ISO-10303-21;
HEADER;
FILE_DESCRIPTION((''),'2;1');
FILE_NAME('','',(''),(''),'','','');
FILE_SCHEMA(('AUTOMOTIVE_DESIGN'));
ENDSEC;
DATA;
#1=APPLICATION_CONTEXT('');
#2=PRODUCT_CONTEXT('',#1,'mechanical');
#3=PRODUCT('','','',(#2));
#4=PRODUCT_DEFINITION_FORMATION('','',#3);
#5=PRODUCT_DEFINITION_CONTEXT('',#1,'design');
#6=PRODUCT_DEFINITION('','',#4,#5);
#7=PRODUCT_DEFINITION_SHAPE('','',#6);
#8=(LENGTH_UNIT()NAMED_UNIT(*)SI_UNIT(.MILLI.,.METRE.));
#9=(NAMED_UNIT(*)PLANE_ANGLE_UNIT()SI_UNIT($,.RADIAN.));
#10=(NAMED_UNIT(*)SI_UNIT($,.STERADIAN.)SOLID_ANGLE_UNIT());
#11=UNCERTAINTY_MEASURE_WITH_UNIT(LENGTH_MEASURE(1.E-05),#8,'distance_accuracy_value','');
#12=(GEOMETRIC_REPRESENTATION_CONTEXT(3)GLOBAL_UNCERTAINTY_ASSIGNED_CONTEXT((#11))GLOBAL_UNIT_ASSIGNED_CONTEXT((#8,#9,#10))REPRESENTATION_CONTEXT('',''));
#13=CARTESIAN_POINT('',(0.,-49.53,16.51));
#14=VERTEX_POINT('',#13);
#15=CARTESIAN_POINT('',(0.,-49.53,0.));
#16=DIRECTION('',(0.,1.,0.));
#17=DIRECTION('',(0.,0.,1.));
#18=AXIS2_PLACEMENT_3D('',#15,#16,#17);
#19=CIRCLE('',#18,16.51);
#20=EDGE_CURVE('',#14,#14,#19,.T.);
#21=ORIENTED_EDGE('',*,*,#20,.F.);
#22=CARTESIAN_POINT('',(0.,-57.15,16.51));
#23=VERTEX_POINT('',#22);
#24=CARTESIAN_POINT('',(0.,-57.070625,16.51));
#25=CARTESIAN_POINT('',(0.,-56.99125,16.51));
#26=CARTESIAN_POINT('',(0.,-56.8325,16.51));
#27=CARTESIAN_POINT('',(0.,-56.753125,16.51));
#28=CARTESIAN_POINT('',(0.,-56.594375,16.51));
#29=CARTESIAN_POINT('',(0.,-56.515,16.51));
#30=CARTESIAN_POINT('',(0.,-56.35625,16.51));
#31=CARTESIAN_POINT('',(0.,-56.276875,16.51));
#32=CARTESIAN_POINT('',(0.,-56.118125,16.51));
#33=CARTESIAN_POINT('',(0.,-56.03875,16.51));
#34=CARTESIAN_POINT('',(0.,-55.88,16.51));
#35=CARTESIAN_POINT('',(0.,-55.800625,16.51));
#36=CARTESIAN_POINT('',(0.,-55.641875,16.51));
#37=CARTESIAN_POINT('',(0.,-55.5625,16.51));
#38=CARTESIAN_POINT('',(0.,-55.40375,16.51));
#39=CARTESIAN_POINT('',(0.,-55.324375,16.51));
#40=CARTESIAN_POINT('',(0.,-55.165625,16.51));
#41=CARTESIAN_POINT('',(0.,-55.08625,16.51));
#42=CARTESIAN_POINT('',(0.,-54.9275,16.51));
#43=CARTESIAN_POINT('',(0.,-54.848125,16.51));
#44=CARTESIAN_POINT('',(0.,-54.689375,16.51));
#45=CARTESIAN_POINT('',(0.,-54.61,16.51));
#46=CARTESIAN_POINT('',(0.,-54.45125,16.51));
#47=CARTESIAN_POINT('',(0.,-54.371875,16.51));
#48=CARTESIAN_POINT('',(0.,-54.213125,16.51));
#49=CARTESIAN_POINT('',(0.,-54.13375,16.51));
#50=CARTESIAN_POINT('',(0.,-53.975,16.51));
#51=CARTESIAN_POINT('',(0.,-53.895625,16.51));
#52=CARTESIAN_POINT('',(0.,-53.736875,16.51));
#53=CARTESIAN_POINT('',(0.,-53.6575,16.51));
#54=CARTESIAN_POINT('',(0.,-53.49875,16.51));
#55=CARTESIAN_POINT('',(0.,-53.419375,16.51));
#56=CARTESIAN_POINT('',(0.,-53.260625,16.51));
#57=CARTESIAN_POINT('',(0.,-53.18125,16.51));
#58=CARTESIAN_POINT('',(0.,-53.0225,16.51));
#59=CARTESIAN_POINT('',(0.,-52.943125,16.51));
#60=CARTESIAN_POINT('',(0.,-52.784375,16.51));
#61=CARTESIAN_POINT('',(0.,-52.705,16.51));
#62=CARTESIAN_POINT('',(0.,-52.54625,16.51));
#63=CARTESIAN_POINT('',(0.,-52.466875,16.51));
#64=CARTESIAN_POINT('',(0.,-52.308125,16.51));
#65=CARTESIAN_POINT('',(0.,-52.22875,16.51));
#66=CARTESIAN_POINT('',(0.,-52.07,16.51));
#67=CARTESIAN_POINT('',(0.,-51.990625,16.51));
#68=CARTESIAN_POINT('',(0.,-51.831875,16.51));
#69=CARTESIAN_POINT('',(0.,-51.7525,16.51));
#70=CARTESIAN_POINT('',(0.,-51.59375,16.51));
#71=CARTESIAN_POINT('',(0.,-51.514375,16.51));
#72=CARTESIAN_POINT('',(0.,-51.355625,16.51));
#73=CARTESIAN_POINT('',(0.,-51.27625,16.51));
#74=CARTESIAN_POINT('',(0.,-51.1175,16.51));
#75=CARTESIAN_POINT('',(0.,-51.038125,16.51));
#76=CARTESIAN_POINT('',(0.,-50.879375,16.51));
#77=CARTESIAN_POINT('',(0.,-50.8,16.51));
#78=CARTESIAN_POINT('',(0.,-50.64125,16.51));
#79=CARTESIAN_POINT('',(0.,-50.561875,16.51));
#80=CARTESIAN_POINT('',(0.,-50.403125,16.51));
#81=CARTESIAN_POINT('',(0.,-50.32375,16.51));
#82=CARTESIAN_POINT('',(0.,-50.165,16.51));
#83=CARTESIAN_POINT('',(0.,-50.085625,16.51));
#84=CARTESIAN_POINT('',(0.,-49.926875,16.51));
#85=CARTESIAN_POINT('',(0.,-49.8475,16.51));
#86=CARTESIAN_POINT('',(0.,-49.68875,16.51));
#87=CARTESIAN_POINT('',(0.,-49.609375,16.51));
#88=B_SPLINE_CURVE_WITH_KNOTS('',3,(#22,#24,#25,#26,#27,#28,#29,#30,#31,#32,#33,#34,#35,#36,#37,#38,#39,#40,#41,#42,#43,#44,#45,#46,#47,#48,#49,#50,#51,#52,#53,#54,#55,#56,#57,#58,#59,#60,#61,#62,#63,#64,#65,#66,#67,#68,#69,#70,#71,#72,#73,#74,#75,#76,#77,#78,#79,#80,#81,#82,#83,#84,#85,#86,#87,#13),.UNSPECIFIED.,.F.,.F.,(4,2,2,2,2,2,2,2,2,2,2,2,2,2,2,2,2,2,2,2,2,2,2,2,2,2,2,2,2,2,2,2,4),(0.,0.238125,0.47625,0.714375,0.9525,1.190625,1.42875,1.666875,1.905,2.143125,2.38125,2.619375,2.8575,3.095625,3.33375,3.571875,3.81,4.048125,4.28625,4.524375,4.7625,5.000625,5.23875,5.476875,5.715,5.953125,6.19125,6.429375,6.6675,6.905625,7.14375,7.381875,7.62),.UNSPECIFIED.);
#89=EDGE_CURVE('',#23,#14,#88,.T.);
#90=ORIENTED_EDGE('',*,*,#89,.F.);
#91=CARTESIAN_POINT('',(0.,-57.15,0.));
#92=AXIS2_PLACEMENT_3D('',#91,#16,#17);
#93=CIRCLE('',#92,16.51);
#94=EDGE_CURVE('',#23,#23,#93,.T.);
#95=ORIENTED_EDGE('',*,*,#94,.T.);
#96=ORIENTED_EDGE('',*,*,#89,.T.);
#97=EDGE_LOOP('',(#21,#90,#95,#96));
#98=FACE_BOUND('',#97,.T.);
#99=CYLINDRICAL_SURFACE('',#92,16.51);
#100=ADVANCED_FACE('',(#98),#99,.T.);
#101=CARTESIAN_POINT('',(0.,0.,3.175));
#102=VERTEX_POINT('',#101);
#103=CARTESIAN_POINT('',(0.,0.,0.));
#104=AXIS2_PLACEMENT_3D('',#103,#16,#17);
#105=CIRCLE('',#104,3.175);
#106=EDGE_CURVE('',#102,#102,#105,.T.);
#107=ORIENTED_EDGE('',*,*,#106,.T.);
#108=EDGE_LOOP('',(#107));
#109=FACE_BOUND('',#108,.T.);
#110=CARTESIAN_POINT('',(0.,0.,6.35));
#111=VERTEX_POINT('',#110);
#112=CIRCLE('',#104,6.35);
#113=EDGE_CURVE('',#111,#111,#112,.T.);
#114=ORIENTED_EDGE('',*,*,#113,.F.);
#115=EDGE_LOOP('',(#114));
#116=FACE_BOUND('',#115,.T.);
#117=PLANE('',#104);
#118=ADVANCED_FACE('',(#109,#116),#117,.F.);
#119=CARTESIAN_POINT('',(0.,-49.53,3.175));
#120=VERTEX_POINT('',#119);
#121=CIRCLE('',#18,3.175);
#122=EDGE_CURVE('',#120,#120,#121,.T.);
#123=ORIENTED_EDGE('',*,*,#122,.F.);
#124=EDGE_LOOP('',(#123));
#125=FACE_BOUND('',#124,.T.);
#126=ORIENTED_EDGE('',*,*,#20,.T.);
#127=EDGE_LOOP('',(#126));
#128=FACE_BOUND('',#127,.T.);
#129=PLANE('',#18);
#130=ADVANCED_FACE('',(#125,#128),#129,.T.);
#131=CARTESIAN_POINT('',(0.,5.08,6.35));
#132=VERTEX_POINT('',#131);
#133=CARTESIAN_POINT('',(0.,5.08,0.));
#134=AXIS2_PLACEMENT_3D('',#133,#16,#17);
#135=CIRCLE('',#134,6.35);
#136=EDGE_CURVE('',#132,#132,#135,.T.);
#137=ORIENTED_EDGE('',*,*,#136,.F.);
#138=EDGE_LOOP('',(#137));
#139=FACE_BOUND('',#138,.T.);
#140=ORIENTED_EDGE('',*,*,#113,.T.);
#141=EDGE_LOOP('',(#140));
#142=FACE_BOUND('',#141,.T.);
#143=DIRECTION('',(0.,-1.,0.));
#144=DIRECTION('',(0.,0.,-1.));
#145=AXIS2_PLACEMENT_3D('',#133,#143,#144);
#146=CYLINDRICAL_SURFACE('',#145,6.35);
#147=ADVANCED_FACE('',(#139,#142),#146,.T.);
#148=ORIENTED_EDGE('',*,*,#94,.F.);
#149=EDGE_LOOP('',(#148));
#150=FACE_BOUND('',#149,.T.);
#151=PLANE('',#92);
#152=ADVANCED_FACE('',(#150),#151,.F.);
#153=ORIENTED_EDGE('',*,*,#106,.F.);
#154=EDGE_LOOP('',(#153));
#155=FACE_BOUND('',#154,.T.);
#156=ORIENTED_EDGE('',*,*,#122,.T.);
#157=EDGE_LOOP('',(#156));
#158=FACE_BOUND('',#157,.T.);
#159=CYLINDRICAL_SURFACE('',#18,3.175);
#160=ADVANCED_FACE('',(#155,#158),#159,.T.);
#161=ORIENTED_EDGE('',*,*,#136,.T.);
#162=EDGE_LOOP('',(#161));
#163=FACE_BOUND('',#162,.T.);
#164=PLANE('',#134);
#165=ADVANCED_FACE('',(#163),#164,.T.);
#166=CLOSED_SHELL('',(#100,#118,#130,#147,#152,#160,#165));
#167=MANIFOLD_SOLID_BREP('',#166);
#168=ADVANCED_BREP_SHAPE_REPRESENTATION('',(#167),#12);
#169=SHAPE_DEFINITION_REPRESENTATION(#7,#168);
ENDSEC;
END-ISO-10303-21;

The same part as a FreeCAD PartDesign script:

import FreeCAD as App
import Part
import Sketcher

V = App.Vector
Q = App.Units.Quantity

doc = App.newDocument("Part")
params = doc.addObject("Spreadsheet::Sheet", "Params")
for row, (alias, value) in enumerate([
    ("sketch1_diameter", "0.5 in"),
    ("pad1_length", "0.2 in"),
    ("sketch2_diameter", "0.25 in"),
    ("pad2_length", "1.95 in"),
    ("sketch3_diameter", "1.3 in"),
    ("pad3_length", "0.3 in"),
], start=1):
    params.set(f"A{row}", alias)
    params.set(f"B{row}", "=" + value)
    params.setAlias(f"B{row}", alias)

body = doc.addObject("PartDesign::Body", "Body")

# Sketch on XZ plane
sketch1 = doc.addObject("Sketcher::SketchObject", "Sketch")
body.addObject(sketch1)
sketch1.AttachmentSupport = (doc.XZ_Plane, [""])
sketch1.MapMode = "FlatFace"
sketch1.addGeometry(Part.Circle(V(0, 0, 0), V(0, 0, 1), 6.35), False)
sketch1.addConstraint(Sketcher.Constraint("Coincident", 0, 3, -1, 1))
sketch1.addConstraint(Sketcher.Constraint("Diameter", 0, Q("0.5 in")))
sketch1.setExpression("Constraints[1]", "Params.sketch1_diameter")
pad1 = doc.addObject("PartDesign::Pad", "Pad")
body.addObject(pad1)
pad1.Profile = sketch1
pad1.setExpression("Length", "Params.pad1_length")
pad1.Reversed = True

# Sketch on XZ plane
sketch2 = doc.addObject("Sketcher::SketchObject", "Sketch001")
body.addObject(sketch2)
sketch2.AttachmentSupport = (doc.XZ_Plane, [""])
sketch2.MapMode = "FlatFace"
sketch2.addGeometry(Part.Circle(V(0, 0, 0), V(0, 0, 1), 3.175), False)
sketch2.addConstraint(Sketcher.Constraint("Coincident", 0, 3, -1, 1))
sketch2.addConstraint(Sketcher.Constraint("Diameter", 0, Q("0.25 in")))
sketch2.setExpression("Constraints[1]", "Params.sketch2_diameter")
pad2 = doc.addObject("PartDesign::Pad", "Pad001")
body.addObject(pad2)
pad2.Profile = sketch2
pad2.setExpression("Length", "Params.pad2_length")

# Sketch on XZ plane
sketch3 = doc.addObject("Sketcher::SketchObject", "Sketch002")
body.addObject(sketch3)
sketch3.AttachmentSupport = (doc.XZ_Plane, [""])
sketch3.MapMode = "FlatFace"
sketch3.AttachmentOffset = App.Placement(V(0, 0, 1.95 * 25.4), App.Rotation())
sketch3.addGeometry(Part.Circle(V(0, 0, 0), V(0, 0, 1), 16.51), False)
sketch3.addConstraint(Sketcher.Constraint("Coincident", 0, 3, -1, 1))
sketch3.addConstraint(Sketcher.Constraint("Diameter", 0, Q("1.3 in")))
sketch3.setExpression("Constraints[1]", "Params.sketch3_diameter")
pad3 = doc.addObject("PartDesign::Pad", "Pad002")
body.addObject(pad3)
pad3.Profile = sketch3
pad3.setExpression("Length", "Params.pad3_length")

doc.recompute()
